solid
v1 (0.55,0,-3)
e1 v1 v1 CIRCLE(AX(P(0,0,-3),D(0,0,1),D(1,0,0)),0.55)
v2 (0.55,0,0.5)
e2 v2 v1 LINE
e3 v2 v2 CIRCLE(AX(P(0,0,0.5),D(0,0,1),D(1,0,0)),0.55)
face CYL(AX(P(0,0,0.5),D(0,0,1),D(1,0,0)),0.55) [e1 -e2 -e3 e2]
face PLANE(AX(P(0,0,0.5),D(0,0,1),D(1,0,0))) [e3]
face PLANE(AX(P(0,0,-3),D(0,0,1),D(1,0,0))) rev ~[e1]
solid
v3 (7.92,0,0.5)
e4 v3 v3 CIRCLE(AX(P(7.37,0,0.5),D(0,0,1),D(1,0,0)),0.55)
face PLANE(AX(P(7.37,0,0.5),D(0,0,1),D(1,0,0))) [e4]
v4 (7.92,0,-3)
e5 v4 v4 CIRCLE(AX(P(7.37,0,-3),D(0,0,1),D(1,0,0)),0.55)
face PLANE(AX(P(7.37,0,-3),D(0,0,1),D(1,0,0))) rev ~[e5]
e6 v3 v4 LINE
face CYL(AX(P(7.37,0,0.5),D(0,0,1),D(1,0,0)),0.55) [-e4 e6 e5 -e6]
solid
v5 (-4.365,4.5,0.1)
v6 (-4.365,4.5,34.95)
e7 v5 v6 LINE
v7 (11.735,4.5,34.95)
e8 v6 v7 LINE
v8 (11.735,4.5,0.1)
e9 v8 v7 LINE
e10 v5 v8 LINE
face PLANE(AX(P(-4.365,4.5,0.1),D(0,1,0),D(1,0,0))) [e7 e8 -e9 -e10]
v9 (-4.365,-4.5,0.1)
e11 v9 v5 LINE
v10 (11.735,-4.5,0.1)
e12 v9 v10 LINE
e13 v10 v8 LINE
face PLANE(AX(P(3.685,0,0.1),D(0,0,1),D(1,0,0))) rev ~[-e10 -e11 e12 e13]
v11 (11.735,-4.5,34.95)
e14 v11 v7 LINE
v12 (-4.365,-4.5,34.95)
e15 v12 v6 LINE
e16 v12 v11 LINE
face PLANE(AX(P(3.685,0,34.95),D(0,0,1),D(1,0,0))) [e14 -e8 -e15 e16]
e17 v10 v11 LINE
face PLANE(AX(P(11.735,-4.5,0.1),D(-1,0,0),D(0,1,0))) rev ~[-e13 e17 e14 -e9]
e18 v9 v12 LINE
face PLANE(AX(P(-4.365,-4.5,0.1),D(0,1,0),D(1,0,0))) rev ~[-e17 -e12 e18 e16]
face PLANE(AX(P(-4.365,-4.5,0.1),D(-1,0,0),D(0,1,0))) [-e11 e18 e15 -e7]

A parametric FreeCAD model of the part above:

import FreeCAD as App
import Part
import Sketcher

V = App.Vector
Q = App.Units.Quantity


def add_polygon(sketch, points):
    """Adds a closed chain of lines whose ends are joined by coincident constraints."""
    first, n = sketch.GeometryCount, len(points)
    for a, b in zip(points, points[1:] + points[:1]):
        sketch.addGeometry(Part.LineSegment(App.Vector(*a, 0), App.Vector(*b, 0)), False)
    for i in range(n):
        sketch.addConstraint(Sketcher.Constraint("Coincident", first + i, 2, first + (i + 1) % n, 1))

doc = App.newDocument("Part")
body = doc.addObject("PartDesign::Body", "Body")

sketch1 = body.newObject("Sketcher::SketchObject", "Sketch")
sketch1.AttachmentSupport = (doc.getObject("XY_Plane"), [""])
sketch1.MapMode = "FlatFace"
sketch1.AttachmentOffset = App.Placement(V(0, 0, 0.1), App.Rotation())
add_polygon(sketch1, [(-4, 4), (-4, -4), (12, -4), (12, 4)])
sketch1.addConstraint([
    Sketcher.Constraint("Vertical", 0),
    Sketcher.Constraint("Horizontal", 1),
    Sketcher.Constraint("Vertical", 2),
    Sketcher.Constraint("Horizontal", 3),
    Sketcher.Constraint("DistanceY", 0, 2, 0, 1, Q("9 mm")),
    Sketcher.Constraint("DistanceX", 1, 1, 1, 2, Q("16.1 mm")),
    Sketcher.Constraint("DistanceY", 0, 2, -1, 1, Q("4.5 mm")),
    Sketcher.Constraint("DistanceX", 0, 2, -1, 1, Q("4.365 mm")),
])
pad1 = body.newObject("PartDesign::Pad", "Pad")
pad1.Profile = sketch1
pad1.Length = 34.85
body2 = doc.addObject("PartDesign::Body", "Body001")
body2.AllowCompound = True

sketch2 = body2.newObject("Sketcher::SketchObject", "Sketch001")
sketch2.AttachmentSupport = (doc.getObject("XY_Plane001"), [""])
sketch2.MapMode = "FlatFace"
sketch2.AttachmentOffset = App.Placement(V(0, 0, 0.5), App.Rotation())
sketch2.addGeometry([
    Part.Circle(V(0, 0, 0), V(0, 0, 1), 0.6),
    Part.Circle(V(7.4, 0, 0), V(0, 0, 1), 0.6),
], False)
sketch2.addConstraint([
    Sketcher.Constraint("Coincident", 0, 3, -1, 1),
    Sketcher.Constraint("Equal", 0, 1),
    Sketcher.Constraint("PointOnObject", 1, 3, -1),
    Sketcher.Constraint("Diameter", 0, Q("1.1 mm")),
    Sketcher.Constraint("DistanceX", -1, 1, 1, 3, Q("7.37 mm")),
])
pad2 = body2.newObject("PartDesign::Pad", "Pad001")
pad2.Profile = sketch2
pad2.Length = 3.5
pad2.Reversed = True

doc.recompute()
